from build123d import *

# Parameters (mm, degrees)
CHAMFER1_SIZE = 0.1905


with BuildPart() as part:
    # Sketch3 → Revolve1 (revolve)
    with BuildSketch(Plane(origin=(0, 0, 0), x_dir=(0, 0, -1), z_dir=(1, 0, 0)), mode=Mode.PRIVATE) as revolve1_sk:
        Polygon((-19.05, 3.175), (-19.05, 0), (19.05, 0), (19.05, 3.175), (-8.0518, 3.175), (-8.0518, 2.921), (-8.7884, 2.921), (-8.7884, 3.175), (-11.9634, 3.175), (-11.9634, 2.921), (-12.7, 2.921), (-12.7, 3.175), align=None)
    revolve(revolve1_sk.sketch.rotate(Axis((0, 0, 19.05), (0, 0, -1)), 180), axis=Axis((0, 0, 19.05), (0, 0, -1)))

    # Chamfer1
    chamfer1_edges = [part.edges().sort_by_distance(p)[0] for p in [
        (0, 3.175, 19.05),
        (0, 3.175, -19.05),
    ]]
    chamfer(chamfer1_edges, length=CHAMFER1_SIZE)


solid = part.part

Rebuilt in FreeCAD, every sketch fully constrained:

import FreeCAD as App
import Part
import Sketcher
Q = App.Units.Quantity


def edges_at(feature, points):
    """Names of the edges that pass closest to the given points."""
    edges = feature.Shape.Edges
    near = lambda p: min(range(len(edges)), key=lambda i: edges[i].distToShape(Part.Vertex(*p))[0])
    return sorted({f"Edge{near(p) + 1}" for p in points})

doc = App.newDocument("Part")
body = doc.addObject("PartDesign::Body", "Body")

# Sketch on YZ plane
sketch1 = body.newObject("Sketcher::SketchObject", "Sketch")
sketch1.AttachmentSupport = (doc.getObject("YZ_Plane"), [""])
sketch1.MapMode = "FlatFace"
sketch1.addGeometry([
    Part.LineSegment(App.Vector(3.17, 19.05, 0), App.Vector(0, 19.05, 0)),  # 0
    Part.LineSegment(App.Vector(0, 19.05, 0), App.Vector(0, -19.05, 0)),  # 1
    Part.LineSegment(App.Vector(0, -19.05, 0), App.Vector(3.17, -19.05, 0)),  # 2
    Part.LineSegment(App.Vector(3.17, -19.05, 0), App.Vector(3.17, 8.05, 0)),  # 3
    Part.LineSegment(App.Vector(3.17, 8.05, 0), App.Vector(2.92, 8.05, 0)),  # 4
    Part.LineSegment(App.Vector(2.92, 8.05, 0), App.Vector(2.92, 8.79, 0)),  # 5
    Part.LineSegment(App.Vector(2.92, 8.79, 0), App.Vector(3.17, 8.79, 0)),  # 6
    Part.LineSegment(App.Vector(3.17, 8.79, 0), App.Vector(3.17, 11.96, 0)),  # 7
    Part.LineSegment(App.Vector(3.17, 11.96, 0), App.Vector(2.92, 11.96, 0)),  # 8
    Part.LineSegment(App.Vector(2.92, 11.96, 0), App.Vector(2.92, 12.7, 0)),  # 9
    Part.LineSegment(App.Vector(2.92, 12.7, 0), App.Vector(3.17, 12.7, 0)),  # 10
    Part.LineSegment(App.Vector(3.17, 12.7, 0), App.Vector(3.17, 19.05, 0)),  # 11
], False)
sketch1.addConstraint([
    Sketcher.Constraint("Coincident", 0, 2, 1, 1),
    Sketcher.Constraint("Coincident", 1, 2, 2, 1),
    Sketcher.Constraint("Coincident", 2, 2, 3, 1),
    Sketcher.Constraint("Coincident", 3, 2, 4, 1),
    Sketcher.Constraint("Coincident", 4, 2, 5, 1),
    Sketcher.Constraint("Coincident", 5, 2, 6, 1),
    Sketcher.Constraint("Coincident", 6, 2, 7, 1),
    Sketcher.Constraint("Coincident", 7, 2, 8, 1),
    Sketcher.Constraint("Coincident", 8, 2, 9, 1),
    Sketcher.Constraint("Coincident", 9, 2, 10, 1),
    Sketcher.Constraint("Coincident", 10, 2, 11, 1),
    Sketcher.Constraint("Coincident", 11, 2, 0, 1),
    Sketcher.Constraint("Horizontal", 0),
    Sketcher.Constraint("Vertical", 1),
    Sketcher.Constraint("Horizontal", 2),
    Sketcher.Constraint("Vertical", 3),
    Sketcher.Constraint("Horizontal", 4),
    Sketcher.Constraint("Vertical", 5),
    Sketcher.Constraint("Horizontal", 6),
    Sketcher.Constraint("Vertical", 7),
    Sketcher.Constraint("Horizontal", 8),
    Sketcher.Constraint("Vertical", 9),
    Sketcher.Constraint("Horizontal", 10),
    Sketcher.Constraint("Vertical", 11),
    Sketcher.Constraint("Symmetric", 0, 2, 1, 2, -1, 1),
    Sketcher.Constraint("Vertical", 3, 2, 6, 2),
    Sketcher.Constraint("Vertical", 5, 2, 8, 2),
    Sketcher.Constraint("Vertical", 7, 2, 10, 2),
    Sketcher.Constraint("Equal", 2, 7),
    Sketcher.Constraint("Equal", 5, 9),
    Sketcher.Constraint("DistanceY", 1, 2, 1, 1, Q("1.5 in")),
    Sketcher.Constraint("DistanceX", 4, 2, 4, 1, Q("0.01 in")),
    Sketcher.Constraint("DistanceY", 11, 1, 11, 2, Q("0.25 in")),
    Sketcher.Constraint("DistanceX", 0, 2, 0, 1, Q("0.125 in")),
    Sketcher.Constraint("DistanceY", 3, 1, 3, 2, Q("1.067 in")),
])
revolution = body.newObject("PartDesign::Revolution", "Revolution")
revolution.Profile = sketch1
revolution.ReferenceAxis = (sketch1, ["V_Axis"])
revolution.Angle = 360
doc.recompute()

chamfer = body.newObject("PartDesign::Chamfer", "Chamfer")
chamfer.Base = (revolution, edges_at(revolution, [(0, 3.175, 19.05), (0, 3.175, -19.05)]))
chamfer.Size = Q("0.0075 in")

doc.recompute()
